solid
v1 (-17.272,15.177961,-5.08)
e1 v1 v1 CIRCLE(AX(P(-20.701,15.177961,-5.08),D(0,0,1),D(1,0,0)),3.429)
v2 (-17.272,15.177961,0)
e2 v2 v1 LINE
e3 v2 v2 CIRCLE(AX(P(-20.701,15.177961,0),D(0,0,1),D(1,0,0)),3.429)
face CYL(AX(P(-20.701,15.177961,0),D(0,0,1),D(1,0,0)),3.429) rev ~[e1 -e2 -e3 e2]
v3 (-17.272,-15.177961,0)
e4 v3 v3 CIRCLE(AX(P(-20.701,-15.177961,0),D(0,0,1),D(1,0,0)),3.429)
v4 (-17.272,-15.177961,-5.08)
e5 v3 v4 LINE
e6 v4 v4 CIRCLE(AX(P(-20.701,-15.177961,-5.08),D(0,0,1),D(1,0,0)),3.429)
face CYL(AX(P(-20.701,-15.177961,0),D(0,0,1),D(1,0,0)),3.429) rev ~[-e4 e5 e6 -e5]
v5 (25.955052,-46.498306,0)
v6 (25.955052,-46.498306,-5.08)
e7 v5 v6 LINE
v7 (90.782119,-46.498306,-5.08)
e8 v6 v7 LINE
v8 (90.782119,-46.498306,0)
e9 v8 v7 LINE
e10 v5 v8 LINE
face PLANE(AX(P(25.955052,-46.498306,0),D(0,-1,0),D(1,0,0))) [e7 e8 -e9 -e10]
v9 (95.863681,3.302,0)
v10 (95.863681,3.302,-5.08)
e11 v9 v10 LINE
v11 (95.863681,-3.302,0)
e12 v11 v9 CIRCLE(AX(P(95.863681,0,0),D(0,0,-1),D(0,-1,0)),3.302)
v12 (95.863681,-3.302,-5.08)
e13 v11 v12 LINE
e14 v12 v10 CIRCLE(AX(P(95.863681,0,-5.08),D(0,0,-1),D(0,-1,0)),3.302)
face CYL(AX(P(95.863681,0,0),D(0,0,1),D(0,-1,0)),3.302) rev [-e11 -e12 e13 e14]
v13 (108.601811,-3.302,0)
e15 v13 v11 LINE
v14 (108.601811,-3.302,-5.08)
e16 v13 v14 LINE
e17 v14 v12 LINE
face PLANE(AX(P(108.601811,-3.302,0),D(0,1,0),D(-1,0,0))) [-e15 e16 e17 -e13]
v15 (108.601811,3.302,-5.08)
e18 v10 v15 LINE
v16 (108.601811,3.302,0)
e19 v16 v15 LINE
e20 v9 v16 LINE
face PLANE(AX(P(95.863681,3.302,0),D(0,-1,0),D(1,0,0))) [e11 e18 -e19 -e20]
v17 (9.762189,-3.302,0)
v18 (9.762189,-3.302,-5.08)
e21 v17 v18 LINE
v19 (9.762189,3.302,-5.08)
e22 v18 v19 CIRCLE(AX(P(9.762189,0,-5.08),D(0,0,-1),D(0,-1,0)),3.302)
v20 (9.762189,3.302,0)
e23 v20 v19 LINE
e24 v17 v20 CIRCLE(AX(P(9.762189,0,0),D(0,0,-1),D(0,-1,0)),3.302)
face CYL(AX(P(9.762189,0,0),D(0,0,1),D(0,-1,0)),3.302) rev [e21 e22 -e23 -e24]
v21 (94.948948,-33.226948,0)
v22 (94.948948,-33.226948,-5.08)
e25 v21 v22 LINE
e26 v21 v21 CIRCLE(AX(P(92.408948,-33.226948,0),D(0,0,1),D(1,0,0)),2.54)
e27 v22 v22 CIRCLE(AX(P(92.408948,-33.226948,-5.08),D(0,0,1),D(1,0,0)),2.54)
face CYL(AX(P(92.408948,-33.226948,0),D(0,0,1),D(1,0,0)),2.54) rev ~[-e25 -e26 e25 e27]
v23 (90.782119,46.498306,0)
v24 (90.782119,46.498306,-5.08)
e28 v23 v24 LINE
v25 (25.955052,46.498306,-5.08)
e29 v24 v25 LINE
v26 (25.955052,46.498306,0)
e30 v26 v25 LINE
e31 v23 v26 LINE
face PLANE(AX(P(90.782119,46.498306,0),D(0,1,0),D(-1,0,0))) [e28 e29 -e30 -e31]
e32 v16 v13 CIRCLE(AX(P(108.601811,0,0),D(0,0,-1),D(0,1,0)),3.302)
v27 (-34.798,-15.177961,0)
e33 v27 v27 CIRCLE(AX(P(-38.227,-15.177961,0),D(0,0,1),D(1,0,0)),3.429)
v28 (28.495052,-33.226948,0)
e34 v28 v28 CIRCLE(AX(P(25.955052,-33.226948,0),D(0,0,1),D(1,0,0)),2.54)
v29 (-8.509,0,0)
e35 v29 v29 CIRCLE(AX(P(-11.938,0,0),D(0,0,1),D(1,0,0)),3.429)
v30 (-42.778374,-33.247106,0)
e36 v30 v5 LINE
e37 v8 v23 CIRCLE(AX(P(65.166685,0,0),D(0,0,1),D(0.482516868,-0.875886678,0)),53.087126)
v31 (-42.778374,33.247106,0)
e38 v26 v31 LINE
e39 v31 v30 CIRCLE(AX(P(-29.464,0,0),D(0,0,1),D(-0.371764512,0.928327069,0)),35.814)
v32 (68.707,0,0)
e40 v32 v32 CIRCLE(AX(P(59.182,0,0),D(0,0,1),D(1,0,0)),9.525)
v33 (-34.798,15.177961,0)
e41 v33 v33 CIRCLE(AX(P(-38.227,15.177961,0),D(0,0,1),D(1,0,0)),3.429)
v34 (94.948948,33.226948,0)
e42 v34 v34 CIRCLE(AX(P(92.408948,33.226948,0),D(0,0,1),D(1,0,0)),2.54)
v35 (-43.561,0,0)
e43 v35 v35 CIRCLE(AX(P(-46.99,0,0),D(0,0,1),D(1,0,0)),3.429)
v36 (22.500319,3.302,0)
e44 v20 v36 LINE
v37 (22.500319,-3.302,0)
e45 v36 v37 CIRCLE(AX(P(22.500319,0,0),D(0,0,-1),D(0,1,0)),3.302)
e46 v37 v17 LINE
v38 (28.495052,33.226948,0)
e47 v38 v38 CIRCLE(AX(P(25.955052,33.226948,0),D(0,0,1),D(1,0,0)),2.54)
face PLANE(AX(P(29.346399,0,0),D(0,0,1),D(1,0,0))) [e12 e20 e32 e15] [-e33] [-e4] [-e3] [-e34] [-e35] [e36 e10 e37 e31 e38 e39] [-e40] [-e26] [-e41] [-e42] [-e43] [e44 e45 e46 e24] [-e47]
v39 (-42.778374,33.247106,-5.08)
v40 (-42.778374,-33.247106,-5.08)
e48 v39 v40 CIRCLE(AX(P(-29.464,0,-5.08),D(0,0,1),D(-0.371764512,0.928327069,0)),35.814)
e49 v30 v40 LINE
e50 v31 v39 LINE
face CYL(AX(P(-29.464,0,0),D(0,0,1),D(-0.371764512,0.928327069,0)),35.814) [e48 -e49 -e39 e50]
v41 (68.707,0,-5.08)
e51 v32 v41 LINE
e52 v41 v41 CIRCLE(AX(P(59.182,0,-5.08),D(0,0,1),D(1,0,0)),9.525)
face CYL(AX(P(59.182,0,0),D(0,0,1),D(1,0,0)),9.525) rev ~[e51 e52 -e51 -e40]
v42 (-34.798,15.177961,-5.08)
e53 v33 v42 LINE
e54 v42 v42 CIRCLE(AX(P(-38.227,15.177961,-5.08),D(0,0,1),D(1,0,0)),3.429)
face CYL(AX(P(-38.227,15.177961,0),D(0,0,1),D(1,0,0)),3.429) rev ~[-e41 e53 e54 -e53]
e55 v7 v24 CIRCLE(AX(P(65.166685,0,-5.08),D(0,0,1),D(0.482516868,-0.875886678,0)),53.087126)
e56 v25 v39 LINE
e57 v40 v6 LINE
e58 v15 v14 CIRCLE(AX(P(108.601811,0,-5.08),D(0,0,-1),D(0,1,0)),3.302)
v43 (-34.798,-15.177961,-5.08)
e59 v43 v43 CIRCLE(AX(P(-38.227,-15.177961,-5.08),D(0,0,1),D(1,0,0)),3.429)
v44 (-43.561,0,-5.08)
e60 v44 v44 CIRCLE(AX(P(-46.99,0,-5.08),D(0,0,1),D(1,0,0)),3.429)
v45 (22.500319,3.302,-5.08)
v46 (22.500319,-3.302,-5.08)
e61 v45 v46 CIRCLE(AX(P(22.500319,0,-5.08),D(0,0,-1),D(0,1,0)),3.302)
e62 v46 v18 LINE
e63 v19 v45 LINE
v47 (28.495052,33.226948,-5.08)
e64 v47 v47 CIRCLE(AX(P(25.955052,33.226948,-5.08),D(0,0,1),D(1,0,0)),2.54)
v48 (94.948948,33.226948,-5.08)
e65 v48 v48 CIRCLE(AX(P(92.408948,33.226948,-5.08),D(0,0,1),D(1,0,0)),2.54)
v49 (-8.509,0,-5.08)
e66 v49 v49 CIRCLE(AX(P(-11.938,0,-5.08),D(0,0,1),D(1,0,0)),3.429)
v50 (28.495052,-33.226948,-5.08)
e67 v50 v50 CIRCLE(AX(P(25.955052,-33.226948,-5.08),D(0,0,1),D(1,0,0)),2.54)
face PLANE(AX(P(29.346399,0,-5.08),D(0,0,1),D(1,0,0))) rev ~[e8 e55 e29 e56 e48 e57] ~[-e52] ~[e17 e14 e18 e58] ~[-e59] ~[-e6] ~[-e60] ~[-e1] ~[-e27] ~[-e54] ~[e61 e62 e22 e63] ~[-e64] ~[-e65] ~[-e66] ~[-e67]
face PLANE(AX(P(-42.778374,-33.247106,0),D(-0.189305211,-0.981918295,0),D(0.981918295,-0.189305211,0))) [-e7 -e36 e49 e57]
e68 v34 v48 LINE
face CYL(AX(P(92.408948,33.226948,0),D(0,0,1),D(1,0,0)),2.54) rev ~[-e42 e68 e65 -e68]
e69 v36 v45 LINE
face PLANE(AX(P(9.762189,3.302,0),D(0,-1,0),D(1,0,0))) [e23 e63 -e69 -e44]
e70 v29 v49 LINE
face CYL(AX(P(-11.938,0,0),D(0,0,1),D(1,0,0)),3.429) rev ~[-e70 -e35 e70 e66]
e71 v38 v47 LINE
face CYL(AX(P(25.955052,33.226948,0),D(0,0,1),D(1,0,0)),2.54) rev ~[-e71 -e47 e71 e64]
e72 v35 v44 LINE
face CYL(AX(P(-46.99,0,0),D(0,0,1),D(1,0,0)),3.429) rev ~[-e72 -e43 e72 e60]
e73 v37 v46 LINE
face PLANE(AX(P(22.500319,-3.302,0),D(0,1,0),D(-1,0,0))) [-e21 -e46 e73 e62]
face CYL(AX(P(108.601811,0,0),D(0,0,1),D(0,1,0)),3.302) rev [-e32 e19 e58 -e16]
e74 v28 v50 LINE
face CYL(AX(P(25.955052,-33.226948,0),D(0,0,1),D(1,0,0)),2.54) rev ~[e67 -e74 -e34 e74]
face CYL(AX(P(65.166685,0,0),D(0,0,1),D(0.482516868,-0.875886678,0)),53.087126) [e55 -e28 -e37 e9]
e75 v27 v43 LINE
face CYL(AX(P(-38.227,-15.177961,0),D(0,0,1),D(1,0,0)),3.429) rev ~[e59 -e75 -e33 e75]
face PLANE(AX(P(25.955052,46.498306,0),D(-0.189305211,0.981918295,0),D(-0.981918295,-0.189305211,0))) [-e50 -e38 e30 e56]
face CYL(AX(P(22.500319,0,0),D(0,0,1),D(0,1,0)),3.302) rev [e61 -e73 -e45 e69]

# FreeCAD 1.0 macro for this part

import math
import FreeCAD as App
import Part
import Sketcher
Q = App.Units.Quantity

doc = App.newDocument("Part")
body = doc.addObject("PartDesign::Body", "Body")

# Sketch on XY plane
sketch1 = doc.addObject("Sketcher::SketchObject", "Sketch")
body.addObject(sketch1)
sketch1.AttachmentSupport = (doc.XY_Plane, [""])
sketch1.MapMode = "FlatFace"
sketch1.addGeometry([
    Part.LineSegment(App.Vector(25.955052, 46.498306, 0), App.Vector(-42.778374, 33.247106, 0)),  # 0
    Part.ArcOfCircle(Part.Circle(App.Vector(-29.464, 0, 0), App.Vector(0, 0, 1), 35.814), math.radians(111.824481), math.radians(248.175519)),  # 1
    Part.LineSegment(App.Vector(-42.778374, -33.247106, 0), App.Vector(25.955052, -46.498306, 0)),  # 2
    Part.LineSegment(App.Vector(25.955052, -46.498306, 0), App.Vector(90.782119, -46.498306, 0)),  # 3
    Part.ArcOfCircle(Part.Circle(App.Vector(65.166685, 0, 0), App.Vector(0, 0, 1), 53.087126), math.radians(-61.150088), math.radians(61.150088)),  # 4
    Part.LineSegment(App.Vector(90.782119, 46.498306, 0), App.Vector(25.955052, 46.498306, 0)),  # 5
    Part.Circle(App.Vector(25.955052, -33.226948, 0), App.Vector(0, 0, 1), 2.54),  # 6
    Part.Circle(App.Vector(-38.227, -15.177961, 0), App.Vector(0, 0, 1), 3.429),  # 7
    Part.Circle(App.Vector(-20.701, -15.177961, 0), App.Vector(0, 0, 1), 3.429),  # 8
    Part.Circle(App.Vector(92.408948, -33.226948, 0), App.Vector(0, 0, 1), 2.54),  # 9
    Part.Circle(App.Vector(-46.99, 0, 0), App.Vector(0, 0, 1), 3.429),  # 10
    Part.Circle(App.Vector(-11.938, 0, 0), App.Vector(0, 0, 1), 3.429),  # 11
    Part.Circle(App.Vector(-38.227, 15.177961, 0), App.Vector(0, 0, 1), 3.429),  # 12
    Part.Circle(App.Vector(-20.701, 15.177961, 0), App.Vector(0, 0, 1), 3.429),  # 13
    Part.LineSegment(App.Vector(9.762189, 3.302, 0), App.Vector(22.500319, 3.302, 0)),  # 14
    Part.ArcOfCircle(Part.Circle(App.Vector(22.500319, 0, 0), App.Vector(0, 0, 1), 3.302), math.radians(-90), math.radians(90)),  # 15
    Part.LineSegment(App.Vector(22.500319, -3.302, 0), App.Vector(9.762189, -3.302, 0)),  # 16
    Part.ArcOfCircle(Part.Circle(App.Vector(9.762189, 0, 0), App.Vector(0, 0, 1), 3.302), math.radians(90), math.radians(270)),  # 17
    Part.Circle(App.Vector(25.955052, 33.226948, 0), App.Vector(0, 0, 1), 2.54),  # 18
    Part.Circle(App.Vector(59.182, 0, 0), App.Vector(0, 0, 1), 9.525),  # 19
    Part.LineSegment(App.Vector(108.601811, -3.302, 0), App.Vector(95.863681, -3.302, 0)),  # 20
    Part.ArcOfCircle(Part.Circle(App.Vector(95.863681, 0, 0), App.Vector(0, 0, 1), 3.302), math.radians(90), math.radians(270)),  # 21
    Part.LineSegment(App.Vector(95.863681, 3.302, 0), App.Vector(108.601811, 3.302, 0)),  # 22
    Part.ArcOfCircle(Part.Circle(App.Vector(108.601811, 0, 0), App.Vector(0, 0, 1), 3.302), math.radians(-90), math.radians(90)),  # 23
    Part.Circle(App.Vector(92.408948, 33.226948, 0), App.Vector(0, 0, 1), 2.54),  # 24
], False)
sketch1.addConstraint([
    Sketcher.Constraint("Coincident", 0, 2, 1, 1),
    Sketcher.Constraint("Coincident", 1, 2, 2, 1),
    Sketcher.Constraint("Coincident", 2, 2, 3, 1),
    Sketcher.Constraint("Coincident", 3, 2, 4, 1),
    Sketcher.Constraint("Coincident", 4, 2, 5, 1),
    Sketcher.Constraint("Coincident", 5, 2, 0, 1),
    Sketcher.Constraint("Tangent", 14, 2, 15, 2),
    Sketcher.Constraint("Tangent", 15, 1, 16, 1),
    Sketcher.Constraint("Tangent", 16, 2, 17, 2),
    Sketcher.Constraint("Tangent", 17, 1, 14, 1),
    Sketcher.Constraint("Tangent", 20, 2, 21, 2),
    Sketcher.Constraint("Tangent", 21, 1, 22, 1),
    Sketcher.Constraint("Tangent", 22, 2, 23, 2),
    Sketcher.Constraint("Tangent", 23, 1, 20, 1),
    Sketcher.Constraint("Horizontal", 3),
    Sketcher.Constraint("Horizontal", 5),
    Sketcher.Constraint("Horizontal", 14),
    Sketcher.Constraint("Horizontal", 16),
    Sketcher.Constraint("Horizontal", 20),
    Sketcher.Constraint("Horizontal", 22),
    Sketcher.Constraint("Equal", 7, 8),
    Sketcher.Constraint("Equal", 6, 9),
    Sketcher.Constraint("Equal", 8, 10),
    Sketcher.Constraint("Equal", 10, 11),
    Sketcher.Constraint("Equal", 11, 12),
    Sketcher.Constraint("Equal", 12, 13),
    Sketcher.Constraint("Equal", 9, 18),
    Sketcher.Constraint("Equal", 17, 21),
    Sketcher.Constraint("Equal", 18, 24),
    Sketcher.Constraint("Symmetric", 7, 3, 12, 3, -1),
    Sketcher.Constraint("Symmetric", 8, 3, 13, 3, -1),
    Sketcher.Constraint("Symmetric", 6, 3, 18, 3, -1),
    Sketcher.Constraint("Symmetric", 9, 3, 24, 3, -1),
    Sketcher.Constraint("Symmetric", 0, 2, 1, 2, -1),
    Sketcher.Constraint("Symmetric", 3, 2, 4, 2, -1),
    Sketcher.Constraint("PointOnObject", 10, 3, -1),
    Sketcher.Constraint("PointOnObject", 11, 3, -1),
    Sketcher.Constraint("PointOnObject", 15, 3, -1),
    Sketcher.Constraint("PointOnObject", 19, 3, -1),
    Sketcher.Constraint("PointOnObject", 21, 3, -1),
    Sketcher.Constraint("Horizontal", 7, 3, 8, 3),
    Sketcher.Constraint("Horizontal", 6, 3, 9, 3),
    Sketcher.Constraint("Vertical", 18, 3, 2, 2),
    Sketcher.Constraint("Vertical", 2, 2, 5, 2),
    Sketcher.Constraint("Equal", 16, 20),
    Sketcher.Constraint("Diameter", 6, Q("0.2 in")),
    Sketcher.Constraint("Diameter", 7, Q("0.27 in")),
    Sketcher.Constraint("Diameter", 19, Q("0.75 in")),
    Sketcher.Constraint("Radius", 1, Q("1.41 in")),
    Sketcher.Constraint("Radius", 15, Q("0.13 in")),
    Sketcher.Constraint("DistanceX", 1, 3, -1, 1, Q("1.16 in")),
    Sketcher.Constraint("DistanceX", 10, 3, -1, 1, Q("1.85 in")),
    Sketcher.Constraint("DistanceX", 11, 3, -1, 1, Q("0.47 in")),
    Sketcher.Constraint("DistanceX", -1, 1, 19, 3, Q("2.33 in")),
    Sketcher.Constraint("DistanceX", 7, 3, 8, 3, Q("0.69 in")),
    Sketcher.Constraint("DistanceX", 7, 3, -1, 1, Q("1.505 in")),
    Sketcher.Constraint("Radius", 4, Q("53.087126 mm")),
    Sketcher.Constraint("DistanceX", 14, 1, 14, 2, Q("12.73813 mm")),
    Sketcher.Constraint("Distance", 0, Q("69.99913 mm")),
    Sketcher.Constraint("DistanceX", 3, 1, 3, 2, Q("64.827067 mm")),
    Sketcher.Constraint("DistanceX", -1, 1, 6, 3, Q("25.955052 mm")),
    Sketcher.Constraint("DistanceY", 7, 3, -1, 1, Q("15.177961 mm")),
    Sketcher.Constraint("DistanceX", -1, 1, 15, 3, Q("22.500319 mm")),
    Sketcher.Constraint("DistanceX", -1, 1, 21, 3, Q("95.863681 mm")),
    Sketcher.Constraint("DistanceX", 8, 3, 9, 3, Q("113.109948 mm")),
    Sketcher.Constraint("DistanceY", 14, 2, 18, 3, Q("29.924948 mm")),
    Sketcher.Constraint("DistanceX", -1, 1, 4, 3, Q("65.166685 mm")),
])
pad1 = doc.addObject("PartDesign::Pad", "Pad")
body.addObject(pad1)
pad1.Profile = sketch1
pad1.Length = Q("0.2 in")
pad1.Reversed = True

doc.recompute()
